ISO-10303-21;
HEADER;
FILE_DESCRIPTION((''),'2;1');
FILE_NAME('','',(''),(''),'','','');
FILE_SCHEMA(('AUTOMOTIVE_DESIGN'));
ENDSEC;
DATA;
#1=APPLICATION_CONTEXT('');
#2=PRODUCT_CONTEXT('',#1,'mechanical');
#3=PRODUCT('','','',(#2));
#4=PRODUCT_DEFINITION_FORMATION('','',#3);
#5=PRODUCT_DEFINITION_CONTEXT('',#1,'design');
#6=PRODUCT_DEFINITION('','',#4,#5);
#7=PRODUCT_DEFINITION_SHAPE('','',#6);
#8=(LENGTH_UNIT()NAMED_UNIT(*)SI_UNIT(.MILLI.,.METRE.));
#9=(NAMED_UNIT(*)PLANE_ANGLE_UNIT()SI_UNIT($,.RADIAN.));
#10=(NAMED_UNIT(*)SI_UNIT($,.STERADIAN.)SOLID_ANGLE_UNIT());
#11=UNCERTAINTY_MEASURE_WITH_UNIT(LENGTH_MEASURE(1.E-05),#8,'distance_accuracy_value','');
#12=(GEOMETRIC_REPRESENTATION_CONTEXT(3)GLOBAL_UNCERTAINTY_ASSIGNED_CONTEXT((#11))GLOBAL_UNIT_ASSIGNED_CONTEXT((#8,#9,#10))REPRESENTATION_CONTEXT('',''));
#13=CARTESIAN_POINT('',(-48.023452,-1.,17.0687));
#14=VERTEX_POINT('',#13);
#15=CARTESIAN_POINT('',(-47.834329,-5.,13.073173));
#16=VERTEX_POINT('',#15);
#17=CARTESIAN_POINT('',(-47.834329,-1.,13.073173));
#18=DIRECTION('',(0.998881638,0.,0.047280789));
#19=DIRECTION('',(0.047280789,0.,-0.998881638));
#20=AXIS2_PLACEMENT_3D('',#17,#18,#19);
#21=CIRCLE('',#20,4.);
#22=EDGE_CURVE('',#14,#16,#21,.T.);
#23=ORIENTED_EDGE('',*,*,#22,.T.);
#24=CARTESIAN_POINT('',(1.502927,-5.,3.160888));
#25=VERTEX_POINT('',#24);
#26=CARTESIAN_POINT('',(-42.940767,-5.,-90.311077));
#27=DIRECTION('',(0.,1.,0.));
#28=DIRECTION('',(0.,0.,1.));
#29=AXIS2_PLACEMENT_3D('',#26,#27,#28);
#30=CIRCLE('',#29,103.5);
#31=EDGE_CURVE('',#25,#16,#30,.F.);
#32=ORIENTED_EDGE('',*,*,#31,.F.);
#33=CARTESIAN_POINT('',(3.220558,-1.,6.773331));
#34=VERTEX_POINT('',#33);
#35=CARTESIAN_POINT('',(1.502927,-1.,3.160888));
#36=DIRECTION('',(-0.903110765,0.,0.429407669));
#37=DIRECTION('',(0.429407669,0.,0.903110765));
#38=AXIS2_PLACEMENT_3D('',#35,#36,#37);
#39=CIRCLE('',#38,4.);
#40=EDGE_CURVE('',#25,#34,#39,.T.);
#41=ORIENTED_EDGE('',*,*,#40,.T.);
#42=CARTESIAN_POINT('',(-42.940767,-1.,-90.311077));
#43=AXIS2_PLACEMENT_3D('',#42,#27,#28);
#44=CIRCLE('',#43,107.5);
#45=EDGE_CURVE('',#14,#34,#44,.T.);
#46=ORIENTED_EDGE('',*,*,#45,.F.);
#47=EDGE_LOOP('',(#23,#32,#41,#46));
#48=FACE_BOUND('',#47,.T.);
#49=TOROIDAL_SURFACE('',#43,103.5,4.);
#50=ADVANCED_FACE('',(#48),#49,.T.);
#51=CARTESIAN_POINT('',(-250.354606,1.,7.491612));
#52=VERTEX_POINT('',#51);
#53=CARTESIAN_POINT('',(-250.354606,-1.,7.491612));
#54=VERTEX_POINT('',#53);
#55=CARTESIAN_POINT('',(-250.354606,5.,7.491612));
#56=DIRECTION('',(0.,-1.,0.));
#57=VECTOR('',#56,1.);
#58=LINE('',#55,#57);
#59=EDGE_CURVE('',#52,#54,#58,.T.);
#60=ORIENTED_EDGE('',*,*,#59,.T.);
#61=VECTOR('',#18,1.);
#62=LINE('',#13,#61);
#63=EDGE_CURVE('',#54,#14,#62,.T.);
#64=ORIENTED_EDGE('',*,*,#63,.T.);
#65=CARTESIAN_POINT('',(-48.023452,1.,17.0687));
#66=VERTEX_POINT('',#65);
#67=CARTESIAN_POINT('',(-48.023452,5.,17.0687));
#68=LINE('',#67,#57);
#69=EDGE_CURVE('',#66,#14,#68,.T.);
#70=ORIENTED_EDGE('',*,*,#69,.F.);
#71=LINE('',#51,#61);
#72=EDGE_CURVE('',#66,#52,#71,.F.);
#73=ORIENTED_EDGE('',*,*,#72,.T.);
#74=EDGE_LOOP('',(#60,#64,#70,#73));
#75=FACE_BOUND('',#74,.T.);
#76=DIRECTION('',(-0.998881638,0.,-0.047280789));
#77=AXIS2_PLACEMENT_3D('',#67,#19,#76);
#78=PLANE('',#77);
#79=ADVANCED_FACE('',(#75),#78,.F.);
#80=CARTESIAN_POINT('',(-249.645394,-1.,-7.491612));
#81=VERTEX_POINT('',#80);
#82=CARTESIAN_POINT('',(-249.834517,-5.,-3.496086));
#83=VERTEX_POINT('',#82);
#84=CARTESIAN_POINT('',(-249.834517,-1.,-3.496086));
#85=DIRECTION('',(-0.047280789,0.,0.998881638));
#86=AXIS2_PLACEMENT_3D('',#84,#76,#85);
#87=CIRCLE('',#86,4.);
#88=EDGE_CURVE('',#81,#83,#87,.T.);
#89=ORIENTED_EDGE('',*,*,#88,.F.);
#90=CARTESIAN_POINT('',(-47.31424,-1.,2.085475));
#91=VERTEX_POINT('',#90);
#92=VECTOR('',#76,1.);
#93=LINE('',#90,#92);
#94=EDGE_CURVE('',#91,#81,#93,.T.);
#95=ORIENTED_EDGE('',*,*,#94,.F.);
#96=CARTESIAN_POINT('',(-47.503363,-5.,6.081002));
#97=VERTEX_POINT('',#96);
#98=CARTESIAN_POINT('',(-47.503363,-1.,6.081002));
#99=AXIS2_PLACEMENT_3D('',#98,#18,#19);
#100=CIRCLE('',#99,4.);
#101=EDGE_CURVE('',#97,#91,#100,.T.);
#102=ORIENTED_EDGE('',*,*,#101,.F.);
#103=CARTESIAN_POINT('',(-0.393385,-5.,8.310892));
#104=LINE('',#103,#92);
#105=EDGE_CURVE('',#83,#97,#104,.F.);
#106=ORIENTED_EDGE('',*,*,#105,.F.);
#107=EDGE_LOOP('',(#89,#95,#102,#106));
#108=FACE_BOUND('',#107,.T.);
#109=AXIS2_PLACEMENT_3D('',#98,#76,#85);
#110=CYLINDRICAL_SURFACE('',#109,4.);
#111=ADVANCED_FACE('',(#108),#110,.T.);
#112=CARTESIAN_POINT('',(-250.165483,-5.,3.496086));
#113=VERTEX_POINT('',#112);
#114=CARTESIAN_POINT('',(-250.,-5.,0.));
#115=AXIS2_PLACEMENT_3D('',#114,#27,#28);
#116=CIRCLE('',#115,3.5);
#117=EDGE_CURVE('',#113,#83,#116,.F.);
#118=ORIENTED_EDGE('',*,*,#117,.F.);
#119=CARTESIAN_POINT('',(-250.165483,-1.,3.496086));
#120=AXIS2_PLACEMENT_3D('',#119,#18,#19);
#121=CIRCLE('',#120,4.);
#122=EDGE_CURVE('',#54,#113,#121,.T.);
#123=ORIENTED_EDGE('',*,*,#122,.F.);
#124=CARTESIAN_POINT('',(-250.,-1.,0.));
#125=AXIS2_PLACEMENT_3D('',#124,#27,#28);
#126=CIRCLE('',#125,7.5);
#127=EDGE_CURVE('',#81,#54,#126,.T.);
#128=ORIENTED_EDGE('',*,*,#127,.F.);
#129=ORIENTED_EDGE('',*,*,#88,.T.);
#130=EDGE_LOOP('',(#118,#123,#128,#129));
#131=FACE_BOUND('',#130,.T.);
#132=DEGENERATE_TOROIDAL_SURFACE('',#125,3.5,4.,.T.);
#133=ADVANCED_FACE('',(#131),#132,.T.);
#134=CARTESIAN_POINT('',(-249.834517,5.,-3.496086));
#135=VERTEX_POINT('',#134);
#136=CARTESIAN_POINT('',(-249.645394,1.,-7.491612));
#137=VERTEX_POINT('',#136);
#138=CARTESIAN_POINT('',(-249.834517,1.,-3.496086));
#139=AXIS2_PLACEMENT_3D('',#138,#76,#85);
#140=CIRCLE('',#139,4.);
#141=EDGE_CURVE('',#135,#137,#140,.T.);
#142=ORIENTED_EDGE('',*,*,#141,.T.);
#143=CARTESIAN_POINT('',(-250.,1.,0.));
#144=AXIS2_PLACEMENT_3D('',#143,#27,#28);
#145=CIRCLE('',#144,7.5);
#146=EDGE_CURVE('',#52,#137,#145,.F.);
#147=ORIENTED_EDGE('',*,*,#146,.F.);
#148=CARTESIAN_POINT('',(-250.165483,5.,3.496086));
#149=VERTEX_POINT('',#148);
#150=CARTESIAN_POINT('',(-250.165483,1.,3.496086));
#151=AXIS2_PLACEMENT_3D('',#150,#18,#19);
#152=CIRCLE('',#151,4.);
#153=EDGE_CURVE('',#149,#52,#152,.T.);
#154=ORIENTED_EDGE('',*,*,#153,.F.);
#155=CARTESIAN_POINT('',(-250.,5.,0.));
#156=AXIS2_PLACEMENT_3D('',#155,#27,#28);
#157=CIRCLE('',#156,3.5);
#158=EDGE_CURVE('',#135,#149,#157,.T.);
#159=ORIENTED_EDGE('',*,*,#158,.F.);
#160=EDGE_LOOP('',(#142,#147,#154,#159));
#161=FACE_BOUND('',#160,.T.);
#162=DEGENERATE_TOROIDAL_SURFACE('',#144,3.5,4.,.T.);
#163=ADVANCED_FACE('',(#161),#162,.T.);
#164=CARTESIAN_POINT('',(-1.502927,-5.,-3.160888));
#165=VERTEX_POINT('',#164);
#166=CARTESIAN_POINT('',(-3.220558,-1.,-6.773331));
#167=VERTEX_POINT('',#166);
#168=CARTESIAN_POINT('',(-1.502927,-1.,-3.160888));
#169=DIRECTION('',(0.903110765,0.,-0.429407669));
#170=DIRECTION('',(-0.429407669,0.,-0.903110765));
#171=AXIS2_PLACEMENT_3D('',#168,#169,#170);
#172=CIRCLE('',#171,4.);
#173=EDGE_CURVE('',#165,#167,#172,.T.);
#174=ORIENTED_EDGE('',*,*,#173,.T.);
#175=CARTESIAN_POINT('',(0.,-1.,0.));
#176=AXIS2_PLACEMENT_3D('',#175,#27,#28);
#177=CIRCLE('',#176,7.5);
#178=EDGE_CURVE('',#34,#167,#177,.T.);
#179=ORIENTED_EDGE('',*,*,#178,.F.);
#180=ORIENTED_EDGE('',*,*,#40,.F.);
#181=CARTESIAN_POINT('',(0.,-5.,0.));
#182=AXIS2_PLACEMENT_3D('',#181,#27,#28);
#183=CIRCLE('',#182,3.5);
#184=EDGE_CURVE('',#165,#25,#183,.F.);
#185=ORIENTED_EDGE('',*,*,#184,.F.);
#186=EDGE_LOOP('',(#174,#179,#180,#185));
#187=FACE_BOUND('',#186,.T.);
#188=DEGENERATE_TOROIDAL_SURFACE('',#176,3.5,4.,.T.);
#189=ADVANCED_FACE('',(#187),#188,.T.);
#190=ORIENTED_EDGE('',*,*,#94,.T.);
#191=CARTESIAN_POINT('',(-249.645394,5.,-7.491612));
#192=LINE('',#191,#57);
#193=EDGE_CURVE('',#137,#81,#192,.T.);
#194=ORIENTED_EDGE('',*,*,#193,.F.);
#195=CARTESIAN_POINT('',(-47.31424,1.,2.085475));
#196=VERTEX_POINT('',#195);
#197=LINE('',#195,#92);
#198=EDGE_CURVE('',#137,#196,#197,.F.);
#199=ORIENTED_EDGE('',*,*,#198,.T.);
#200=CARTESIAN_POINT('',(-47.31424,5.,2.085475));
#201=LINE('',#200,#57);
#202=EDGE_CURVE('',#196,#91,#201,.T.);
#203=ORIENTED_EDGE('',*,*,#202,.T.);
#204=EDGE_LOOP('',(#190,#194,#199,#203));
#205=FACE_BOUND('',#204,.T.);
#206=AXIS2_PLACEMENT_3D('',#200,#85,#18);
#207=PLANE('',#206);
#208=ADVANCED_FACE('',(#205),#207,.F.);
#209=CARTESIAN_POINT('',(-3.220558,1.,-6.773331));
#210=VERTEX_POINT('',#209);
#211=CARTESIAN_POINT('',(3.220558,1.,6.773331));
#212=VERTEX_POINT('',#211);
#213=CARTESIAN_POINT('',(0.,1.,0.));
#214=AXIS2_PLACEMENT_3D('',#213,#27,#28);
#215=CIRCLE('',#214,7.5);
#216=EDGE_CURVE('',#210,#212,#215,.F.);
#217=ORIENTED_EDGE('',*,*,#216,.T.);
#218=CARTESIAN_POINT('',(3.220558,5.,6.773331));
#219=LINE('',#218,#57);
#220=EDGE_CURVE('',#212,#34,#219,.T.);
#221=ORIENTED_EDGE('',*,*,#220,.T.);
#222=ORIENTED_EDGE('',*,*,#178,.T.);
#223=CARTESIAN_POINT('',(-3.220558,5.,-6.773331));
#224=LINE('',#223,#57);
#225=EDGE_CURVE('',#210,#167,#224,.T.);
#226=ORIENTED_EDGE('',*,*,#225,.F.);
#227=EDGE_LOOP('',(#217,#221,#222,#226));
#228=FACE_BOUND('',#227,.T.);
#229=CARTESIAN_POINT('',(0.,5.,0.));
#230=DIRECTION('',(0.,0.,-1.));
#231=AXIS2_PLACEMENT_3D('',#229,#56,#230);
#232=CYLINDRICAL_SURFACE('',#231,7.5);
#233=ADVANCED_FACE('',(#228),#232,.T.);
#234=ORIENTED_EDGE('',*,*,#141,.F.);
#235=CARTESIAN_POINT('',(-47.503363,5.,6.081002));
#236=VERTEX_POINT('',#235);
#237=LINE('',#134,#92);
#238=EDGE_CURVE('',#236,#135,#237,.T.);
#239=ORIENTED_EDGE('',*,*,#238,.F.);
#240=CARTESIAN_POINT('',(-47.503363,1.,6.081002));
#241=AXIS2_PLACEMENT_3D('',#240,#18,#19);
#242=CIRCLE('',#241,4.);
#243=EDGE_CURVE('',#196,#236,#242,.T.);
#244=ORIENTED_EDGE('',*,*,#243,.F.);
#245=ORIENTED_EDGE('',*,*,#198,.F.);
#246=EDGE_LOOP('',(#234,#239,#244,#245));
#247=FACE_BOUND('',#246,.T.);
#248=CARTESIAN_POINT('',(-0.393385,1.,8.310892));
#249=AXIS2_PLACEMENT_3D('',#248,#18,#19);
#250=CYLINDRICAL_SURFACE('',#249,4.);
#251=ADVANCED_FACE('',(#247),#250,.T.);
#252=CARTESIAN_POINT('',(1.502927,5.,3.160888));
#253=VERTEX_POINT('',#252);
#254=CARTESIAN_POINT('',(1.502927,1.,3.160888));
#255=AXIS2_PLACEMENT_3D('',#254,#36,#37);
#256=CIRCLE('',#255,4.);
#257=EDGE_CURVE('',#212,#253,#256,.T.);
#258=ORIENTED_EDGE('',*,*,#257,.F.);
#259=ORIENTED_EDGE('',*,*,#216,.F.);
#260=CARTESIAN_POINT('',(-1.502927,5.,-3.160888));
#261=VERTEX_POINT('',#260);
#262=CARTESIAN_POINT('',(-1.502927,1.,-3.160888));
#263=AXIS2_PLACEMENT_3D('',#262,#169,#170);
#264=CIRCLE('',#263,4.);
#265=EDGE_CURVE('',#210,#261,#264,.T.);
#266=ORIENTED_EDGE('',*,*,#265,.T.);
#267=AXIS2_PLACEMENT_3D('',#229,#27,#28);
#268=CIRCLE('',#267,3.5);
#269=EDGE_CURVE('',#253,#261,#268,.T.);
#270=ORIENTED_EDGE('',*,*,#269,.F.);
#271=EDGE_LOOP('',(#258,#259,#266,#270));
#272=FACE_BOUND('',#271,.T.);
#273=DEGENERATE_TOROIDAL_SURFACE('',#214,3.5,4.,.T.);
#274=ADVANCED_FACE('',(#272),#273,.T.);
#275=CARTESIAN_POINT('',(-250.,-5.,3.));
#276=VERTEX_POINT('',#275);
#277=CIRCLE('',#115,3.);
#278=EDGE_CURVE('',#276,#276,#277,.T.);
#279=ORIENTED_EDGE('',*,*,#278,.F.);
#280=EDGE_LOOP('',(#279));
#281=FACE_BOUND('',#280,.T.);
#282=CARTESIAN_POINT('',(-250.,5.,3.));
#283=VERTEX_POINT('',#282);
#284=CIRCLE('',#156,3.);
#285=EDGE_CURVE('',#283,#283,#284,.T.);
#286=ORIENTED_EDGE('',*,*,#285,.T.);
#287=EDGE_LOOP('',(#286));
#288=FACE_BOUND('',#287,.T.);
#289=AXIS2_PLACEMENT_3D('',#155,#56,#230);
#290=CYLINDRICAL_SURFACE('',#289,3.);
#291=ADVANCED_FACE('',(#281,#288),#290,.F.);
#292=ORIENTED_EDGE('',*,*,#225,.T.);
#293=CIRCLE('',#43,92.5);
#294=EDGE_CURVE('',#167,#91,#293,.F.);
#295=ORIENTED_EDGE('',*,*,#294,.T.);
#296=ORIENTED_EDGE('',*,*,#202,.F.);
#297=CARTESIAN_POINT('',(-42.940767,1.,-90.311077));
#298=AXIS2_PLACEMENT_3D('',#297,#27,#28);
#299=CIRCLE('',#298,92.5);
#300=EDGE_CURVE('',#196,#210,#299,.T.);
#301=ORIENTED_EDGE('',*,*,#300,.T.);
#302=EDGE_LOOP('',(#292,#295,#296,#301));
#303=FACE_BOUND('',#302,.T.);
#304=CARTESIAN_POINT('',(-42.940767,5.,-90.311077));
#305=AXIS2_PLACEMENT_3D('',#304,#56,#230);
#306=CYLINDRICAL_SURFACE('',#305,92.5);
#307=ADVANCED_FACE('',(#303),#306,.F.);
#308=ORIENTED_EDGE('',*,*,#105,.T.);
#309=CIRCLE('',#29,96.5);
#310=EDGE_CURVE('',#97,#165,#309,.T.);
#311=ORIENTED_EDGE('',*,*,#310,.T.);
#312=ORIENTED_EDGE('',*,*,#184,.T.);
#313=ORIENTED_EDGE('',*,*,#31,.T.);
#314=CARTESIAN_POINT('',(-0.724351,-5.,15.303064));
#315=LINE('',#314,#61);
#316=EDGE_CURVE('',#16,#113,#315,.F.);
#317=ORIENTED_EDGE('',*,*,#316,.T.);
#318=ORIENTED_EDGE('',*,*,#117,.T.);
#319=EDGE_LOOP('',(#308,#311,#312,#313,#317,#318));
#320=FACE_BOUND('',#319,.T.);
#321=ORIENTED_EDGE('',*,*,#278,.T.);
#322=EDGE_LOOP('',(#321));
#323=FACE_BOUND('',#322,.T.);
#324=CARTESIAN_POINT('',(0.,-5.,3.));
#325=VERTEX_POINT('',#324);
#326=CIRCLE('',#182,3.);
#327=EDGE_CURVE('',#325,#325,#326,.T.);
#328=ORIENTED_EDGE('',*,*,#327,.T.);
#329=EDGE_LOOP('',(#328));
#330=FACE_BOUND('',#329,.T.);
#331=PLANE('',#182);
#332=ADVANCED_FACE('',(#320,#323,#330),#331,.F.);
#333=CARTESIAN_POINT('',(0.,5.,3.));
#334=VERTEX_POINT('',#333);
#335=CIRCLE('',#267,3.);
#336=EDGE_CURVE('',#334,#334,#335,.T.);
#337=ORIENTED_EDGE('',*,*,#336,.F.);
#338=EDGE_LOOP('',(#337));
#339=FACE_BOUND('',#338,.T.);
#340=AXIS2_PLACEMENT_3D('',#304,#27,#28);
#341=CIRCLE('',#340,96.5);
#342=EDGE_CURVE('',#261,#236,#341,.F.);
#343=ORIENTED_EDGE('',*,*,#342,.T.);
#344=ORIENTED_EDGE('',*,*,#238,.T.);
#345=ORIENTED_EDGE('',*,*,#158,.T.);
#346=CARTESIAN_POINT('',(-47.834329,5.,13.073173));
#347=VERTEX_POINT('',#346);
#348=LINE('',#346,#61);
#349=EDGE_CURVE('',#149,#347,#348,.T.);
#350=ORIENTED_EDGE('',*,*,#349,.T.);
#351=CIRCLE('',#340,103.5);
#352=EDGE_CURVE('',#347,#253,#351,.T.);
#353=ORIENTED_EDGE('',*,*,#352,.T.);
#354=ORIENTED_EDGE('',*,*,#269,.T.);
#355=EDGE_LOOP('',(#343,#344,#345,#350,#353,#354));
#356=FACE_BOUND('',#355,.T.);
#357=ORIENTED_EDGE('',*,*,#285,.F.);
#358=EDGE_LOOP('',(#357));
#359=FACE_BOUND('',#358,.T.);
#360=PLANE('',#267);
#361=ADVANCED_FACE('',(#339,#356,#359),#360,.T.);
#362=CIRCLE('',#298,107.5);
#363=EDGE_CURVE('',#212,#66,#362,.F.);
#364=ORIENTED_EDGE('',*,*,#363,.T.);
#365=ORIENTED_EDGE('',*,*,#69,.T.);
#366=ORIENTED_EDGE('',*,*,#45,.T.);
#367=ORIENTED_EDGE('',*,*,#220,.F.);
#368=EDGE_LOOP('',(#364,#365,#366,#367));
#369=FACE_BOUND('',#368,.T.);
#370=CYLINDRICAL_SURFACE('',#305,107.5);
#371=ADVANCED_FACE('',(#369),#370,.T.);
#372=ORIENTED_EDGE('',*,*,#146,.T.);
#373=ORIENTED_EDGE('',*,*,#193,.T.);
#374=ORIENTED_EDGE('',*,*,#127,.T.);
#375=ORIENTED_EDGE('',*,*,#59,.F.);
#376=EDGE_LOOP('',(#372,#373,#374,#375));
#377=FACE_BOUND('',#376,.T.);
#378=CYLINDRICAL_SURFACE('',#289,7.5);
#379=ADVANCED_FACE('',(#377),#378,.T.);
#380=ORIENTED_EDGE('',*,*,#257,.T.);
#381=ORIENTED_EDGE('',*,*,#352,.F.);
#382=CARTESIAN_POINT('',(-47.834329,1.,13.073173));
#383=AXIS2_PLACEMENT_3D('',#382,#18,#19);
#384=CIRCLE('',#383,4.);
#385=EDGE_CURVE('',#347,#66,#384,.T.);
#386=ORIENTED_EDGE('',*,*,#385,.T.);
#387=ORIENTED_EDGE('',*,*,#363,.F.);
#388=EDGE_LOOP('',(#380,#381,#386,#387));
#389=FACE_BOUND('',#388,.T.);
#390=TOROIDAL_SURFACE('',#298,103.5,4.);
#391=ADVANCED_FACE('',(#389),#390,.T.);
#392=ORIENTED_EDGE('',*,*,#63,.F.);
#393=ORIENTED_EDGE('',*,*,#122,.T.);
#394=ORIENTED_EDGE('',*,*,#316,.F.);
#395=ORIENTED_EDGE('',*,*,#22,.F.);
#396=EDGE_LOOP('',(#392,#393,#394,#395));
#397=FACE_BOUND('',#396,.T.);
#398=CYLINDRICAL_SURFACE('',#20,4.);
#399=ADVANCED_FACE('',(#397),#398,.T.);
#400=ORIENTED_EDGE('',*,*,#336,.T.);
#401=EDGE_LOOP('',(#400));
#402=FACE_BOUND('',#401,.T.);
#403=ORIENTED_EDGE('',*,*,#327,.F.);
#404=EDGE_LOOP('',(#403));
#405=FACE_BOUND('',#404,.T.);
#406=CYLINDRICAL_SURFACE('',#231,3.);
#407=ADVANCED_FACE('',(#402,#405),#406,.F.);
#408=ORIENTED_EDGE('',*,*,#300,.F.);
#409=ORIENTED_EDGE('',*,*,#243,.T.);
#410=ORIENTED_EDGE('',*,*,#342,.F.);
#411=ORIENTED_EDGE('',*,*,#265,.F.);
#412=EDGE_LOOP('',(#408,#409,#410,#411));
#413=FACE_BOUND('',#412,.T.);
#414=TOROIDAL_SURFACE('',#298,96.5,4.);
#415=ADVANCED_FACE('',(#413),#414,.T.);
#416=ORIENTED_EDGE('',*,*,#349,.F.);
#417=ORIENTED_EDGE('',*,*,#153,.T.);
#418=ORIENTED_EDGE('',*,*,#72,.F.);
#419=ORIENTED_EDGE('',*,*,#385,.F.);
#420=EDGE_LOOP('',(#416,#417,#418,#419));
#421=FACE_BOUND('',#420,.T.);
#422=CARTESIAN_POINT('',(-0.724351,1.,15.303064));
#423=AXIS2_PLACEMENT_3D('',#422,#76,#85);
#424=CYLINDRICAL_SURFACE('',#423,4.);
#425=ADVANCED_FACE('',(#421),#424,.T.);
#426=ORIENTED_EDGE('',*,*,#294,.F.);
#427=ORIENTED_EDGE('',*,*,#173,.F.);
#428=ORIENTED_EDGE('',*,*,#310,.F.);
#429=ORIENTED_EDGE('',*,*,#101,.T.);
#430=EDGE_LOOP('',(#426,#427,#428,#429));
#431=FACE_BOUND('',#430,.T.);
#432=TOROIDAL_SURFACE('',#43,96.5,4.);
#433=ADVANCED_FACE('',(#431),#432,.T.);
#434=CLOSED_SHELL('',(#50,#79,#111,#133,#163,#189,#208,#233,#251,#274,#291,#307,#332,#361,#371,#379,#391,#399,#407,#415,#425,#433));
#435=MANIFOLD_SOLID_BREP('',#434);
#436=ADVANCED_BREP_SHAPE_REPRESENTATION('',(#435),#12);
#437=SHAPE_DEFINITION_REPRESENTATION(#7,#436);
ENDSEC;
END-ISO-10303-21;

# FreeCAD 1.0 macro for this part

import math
import FreeCAD as App
import Part
import Sketcher
Q = App.Units.Quantity


def edges_at(feature, points):
    """Names of the edges that pass closest to the given points."""
    edges = feature.Shape.Edges
    near = lambda p: min(range(len(edges)), key=lambda i: edges[i].distToShape(Part.Vertex(*p))[0])
    return sorted({f"Edge{near(p) + 1}" for p in points})

doc = App.newDocument("Part")
body = doc.addObject("PartDesign::Body", "Body")

# Sketch on XZ plane
sketch1 = body.newObject("Sketcher::SketchObject", "Sketch")
sketch1.AttachmentSupport = (doc.getObject("XZ_Plane"), [""])
sketch1.MapMode = "FlatFace"
sketch1.addGeometry([
    Part.LineSegment(App.Vector(-250.4, 7.5, 0), App.Vector(-48, 17.1, 0)),  # 0
    Part.ArcOfCircle(Part.Circle(App.Vector(-42.9, -90.3, 0), App.Vector(0, 0, 1), 107.5), math.radians(65), math.radians(93)),  # 1
    Part.ArcOfCircle(Part.Circle(App.Vector(0, 0, 0), App.Vector(0, 0, 1), 7.5), math.radians(-115), math.radians(65)),  # 2
    Part.ArcOfCircle(Part.Circle(App.Vector(-42.9, -90.3, 0), App.Vector(0, 0, 1), 92.5), math.radians(65), math.radians(93)),  # 3
    Part.LineSegment(App.Vector(-47.3, 2.1, 0), App.Vector(-249.6, -7.5, 0)),  # 4
    Part.ArcOfCircle(Part.Circle(App.Vector(-250, 0, 0), App.Vector(0, 0, 1), 7.5), math.radians(93), math.radians(273)),  # 5
    Part.Circle(App.Vector(-250, 0, 0), App.Vector(0, 0, 1), 3),  # 6
    Part.Circle(App.Vector(0, 0, 0), App.Vector(0, 0, 1), 3),  # 7
], False)
sketch1.addConstraint([
    Sketcher.Constraint("Tangent", 0, 2, 1, 2),
    Sketcher.Constraint("Tangent", 1, 1, 2, 2),
    Sketcher.Constraint("Tangent", 2, 1, 3, 1),
    Sketcher.Constraint("Tangent", 3, 2, 4, 1),
    Sketcher.Constraint("Tangent", 4, 2, 5, 2),
    Sketcher.Constraint("Tangent", 5, 1, 0, 1),
    Sketcher.Constraint("Coincident", 2, 3, -1, 1),
    Sketcher.Constraint("Coincident", 7, 3, -1, 1),
    Sketcher.Constraint("Coincident", 3, 3, 1, 3),
    Sketcher.Constraint("Coincident", 6, 3, 5, 3),
    Sketcher.Constraint("Equal", 2, 5),
    Sketcher.Constraint("Equal", 6, 7),
    Sketcher.Constraint("PointOnObject", 5, 3, -1),
    Sketcher.Constraint("Diameter", 6, 6.0),
    Sketcher.Constraint("Radius", 1, 107.5),
    Sketcher.Constraint("Radius", 2, 7.5),
    Sketcher.Constraint("DistanceX", 5, 3, -1, 1, 250.0),
    Sketcher.Constraint("Angle", 0, Q("2.71 deg")),
])
pad1 = body.newObject("PartDesign::Pad", "Pad")
pad1.Profile = sketch1
pad1.Length = 10
pad1.Midplane = True
doc.recompute()

fillet = body.newObject("PartDesign::Fillet", "Fillet")
fillet.Base = (pad1, edges_at(pad1, [
    (-148.48, 5, -2.703),
    (-257.492, 5, -0.355),
    (-149.189, 5, 12.28),
    (-21.766, 5, 15.083),
    (6.773, 5, -3.221),
    (-21.766, -5, 15.083),
    (-149.189, -5, 12.28),
    (-257.492, -5, -0.355),
    (-148.48, -5, -2.703),
    (-24.721, -5, 0.377),
    (6.773, -5, -3.221),
    (-24.721, 5, 0.377),
]))
fillet.Radius = 4

doc.recompute()
